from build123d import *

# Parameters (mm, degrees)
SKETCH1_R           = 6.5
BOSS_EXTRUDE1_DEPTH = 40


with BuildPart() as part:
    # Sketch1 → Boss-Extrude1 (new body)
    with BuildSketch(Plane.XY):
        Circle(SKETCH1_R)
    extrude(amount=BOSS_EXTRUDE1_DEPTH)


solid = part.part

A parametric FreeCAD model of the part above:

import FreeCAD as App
import Part
import Sketcher
from FreeCAD import Vector

doc = App.newDocument("Part")
body = doc.addObject("PartDesign::Body", "Body")

sketch1 = doc.addObject("Sketcher::SketchObject", "Sketch")
body.addObject(sketch1)
sketch1.AttachmentSupport = (doc.XY_Plane, [""])
sketch1.MapMode = "FlatFace"
sketch1.addGeometry(Part.Circle(Vector(0, 0, 0), Vector(0, 0, 1), 6), False)
sketch1.addConstraint([
    Sketcher.Constraint("Coincident", 0, 3, -1, 1),
    Sketcher.Constraint("Diameter", 0, 13.0),
])
pad1 = doc.addObject("PartDesign::Pad", "Pad")
body.addObject(pad1)
pad1.Profile = sketch1
pad1.Length = 40

doc.recompute()
